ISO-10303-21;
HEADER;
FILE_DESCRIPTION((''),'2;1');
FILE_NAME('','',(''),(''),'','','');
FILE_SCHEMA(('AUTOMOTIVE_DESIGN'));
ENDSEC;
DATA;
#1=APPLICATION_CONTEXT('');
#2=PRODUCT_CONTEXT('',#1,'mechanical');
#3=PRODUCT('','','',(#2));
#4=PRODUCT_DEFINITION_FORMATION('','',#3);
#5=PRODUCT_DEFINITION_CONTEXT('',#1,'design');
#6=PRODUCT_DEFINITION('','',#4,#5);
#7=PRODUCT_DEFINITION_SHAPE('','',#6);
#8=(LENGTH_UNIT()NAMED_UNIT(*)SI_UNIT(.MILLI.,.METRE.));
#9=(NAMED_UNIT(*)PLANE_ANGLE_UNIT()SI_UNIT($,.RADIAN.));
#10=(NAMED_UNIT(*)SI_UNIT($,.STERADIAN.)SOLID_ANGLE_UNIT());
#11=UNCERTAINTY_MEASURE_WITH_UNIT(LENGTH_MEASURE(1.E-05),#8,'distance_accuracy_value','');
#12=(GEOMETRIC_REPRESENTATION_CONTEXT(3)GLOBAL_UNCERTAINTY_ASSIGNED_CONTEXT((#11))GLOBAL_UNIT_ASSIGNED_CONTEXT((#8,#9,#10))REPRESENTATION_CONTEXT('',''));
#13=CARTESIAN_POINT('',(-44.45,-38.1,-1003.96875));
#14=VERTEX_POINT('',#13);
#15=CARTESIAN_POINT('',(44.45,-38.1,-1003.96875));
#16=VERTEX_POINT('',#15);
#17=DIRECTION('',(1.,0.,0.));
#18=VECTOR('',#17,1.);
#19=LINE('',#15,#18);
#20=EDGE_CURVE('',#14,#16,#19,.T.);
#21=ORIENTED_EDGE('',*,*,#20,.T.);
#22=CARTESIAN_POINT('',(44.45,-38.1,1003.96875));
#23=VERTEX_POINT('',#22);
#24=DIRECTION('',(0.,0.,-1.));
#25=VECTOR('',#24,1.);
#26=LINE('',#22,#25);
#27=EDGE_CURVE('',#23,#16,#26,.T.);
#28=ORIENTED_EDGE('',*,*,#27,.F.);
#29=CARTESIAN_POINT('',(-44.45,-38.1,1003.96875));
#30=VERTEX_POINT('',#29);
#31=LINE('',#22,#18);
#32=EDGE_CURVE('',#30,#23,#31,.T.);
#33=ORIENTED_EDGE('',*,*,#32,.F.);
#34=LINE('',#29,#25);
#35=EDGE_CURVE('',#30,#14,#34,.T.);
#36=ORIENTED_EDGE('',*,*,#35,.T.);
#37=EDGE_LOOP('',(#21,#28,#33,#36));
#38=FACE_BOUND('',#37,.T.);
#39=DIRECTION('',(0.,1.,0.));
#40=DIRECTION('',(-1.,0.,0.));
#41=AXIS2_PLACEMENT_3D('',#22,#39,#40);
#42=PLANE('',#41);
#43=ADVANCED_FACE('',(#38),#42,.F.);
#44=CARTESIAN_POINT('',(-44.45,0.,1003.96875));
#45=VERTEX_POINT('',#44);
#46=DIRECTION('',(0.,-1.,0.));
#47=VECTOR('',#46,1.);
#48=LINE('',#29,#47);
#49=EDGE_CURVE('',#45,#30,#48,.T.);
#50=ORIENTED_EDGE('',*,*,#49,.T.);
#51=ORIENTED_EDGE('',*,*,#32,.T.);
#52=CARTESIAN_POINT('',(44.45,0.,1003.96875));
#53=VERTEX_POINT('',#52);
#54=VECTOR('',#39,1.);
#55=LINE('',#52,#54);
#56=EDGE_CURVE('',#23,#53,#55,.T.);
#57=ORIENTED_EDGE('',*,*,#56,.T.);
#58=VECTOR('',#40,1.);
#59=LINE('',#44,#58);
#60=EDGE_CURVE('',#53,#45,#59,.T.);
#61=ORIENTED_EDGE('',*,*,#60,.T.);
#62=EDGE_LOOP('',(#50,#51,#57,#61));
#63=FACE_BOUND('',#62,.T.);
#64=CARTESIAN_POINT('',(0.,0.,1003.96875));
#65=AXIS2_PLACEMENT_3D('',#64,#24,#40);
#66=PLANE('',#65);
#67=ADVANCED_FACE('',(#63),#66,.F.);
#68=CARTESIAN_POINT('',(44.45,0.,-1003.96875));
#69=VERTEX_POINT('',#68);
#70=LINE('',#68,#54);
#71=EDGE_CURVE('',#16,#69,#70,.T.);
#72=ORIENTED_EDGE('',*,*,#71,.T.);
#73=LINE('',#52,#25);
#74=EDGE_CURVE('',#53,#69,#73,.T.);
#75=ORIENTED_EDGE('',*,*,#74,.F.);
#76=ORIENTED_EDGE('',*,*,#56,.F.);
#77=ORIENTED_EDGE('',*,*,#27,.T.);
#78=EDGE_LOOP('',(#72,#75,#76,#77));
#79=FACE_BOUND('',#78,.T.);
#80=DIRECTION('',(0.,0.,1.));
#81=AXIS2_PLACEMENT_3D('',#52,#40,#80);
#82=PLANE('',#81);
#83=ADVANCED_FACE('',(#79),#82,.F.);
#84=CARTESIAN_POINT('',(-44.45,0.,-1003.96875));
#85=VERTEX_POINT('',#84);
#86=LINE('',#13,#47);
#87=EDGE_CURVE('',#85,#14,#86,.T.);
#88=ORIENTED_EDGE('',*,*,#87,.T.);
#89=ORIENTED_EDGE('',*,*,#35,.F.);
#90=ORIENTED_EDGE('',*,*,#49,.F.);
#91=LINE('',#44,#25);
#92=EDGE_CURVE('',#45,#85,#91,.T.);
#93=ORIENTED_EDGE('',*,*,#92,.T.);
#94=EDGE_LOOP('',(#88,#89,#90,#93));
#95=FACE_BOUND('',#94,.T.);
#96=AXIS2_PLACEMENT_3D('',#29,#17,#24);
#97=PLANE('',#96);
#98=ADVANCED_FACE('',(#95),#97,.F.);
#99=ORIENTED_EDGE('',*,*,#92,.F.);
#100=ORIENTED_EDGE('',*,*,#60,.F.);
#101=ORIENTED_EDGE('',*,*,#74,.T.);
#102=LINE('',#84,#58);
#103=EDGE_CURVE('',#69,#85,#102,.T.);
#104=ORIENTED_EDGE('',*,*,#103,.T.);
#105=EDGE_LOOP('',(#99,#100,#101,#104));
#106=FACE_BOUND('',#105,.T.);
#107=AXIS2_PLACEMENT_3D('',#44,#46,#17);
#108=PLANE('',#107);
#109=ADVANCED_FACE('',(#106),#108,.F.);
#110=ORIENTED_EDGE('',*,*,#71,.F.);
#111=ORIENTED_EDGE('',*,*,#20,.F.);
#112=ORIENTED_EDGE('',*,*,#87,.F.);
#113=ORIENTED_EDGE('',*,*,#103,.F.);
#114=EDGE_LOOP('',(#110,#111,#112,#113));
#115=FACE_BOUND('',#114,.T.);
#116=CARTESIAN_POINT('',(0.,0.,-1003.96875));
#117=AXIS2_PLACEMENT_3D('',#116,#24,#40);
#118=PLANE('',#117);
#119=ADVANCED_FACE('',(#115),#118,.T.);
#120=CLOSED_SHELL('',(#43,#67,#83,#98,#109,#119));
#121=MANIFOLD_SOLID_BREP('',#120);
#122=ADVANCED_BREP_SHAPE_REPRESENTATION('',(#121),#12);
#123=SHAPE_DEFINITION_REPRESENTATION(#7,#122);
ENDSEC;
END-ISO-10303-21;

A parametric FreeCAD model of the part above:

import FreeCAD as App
import Part
import Sketcher
from FreeCAD import Vector
Q = App.Units.Quantity


def add_polygon(sketch, points):
    """Adds a closed chain of lines whose ends are joined by coincident constraints."""
    first, n = sketch.GeometryCount, len(points)
    for a, b in zip(points, points[1:] + points[:1]):
        sketch.addGeometry(Part.LineSegment(App.Vector(*a, 0), App.Vector(*b, 0)), False)
    for i in range(n):
        sketch.addConstraint(Sketcher.Constraint("Coincident", first + i, 2, first + (i + 1) % n, 1))

doc = App.newDocument("Part")
params = doc.addObject("Spreadsheet::Sheet", "Params")
for row, (alias, value) in enumerate([
    ("sketch1_width", "3.5 in"),
    ("sketch1_height", "1.5 in"),
    ("pad1_length", "2007.9375 mm"),
], start=1):
    params.set(f"A{row}", alias)
    params.set(f"B{row}", "=" + value)
    params.setAlias(f"B{row}", alias)

body = doc.addObject("PartDesign::Body", "Body")

# Sketch on XY plane
sketch1 = body.newObject("Sketcher::SketchObject", "Sketch")
sketch1.AttachmentSupport = (doc.getObject("XY_Plane"), [""])
sketch1.MapMode = "FlatFace"
add_polygon(sketch1, [(-44.45, 0), (-44.45, -38.1), (44.45, -38.1), (44.45, 0)])  # lines 0-3
sketch1.addConstraint([
    Sketcher.Constraint("Vertical", 0),
    Sketcher.Constraint("Horizontal", 1),
    Sketcher.Constraint("Vertical", 2),
    Sketcher.Constraint("Horizontal", 3),
    Sketcher.Constraint("Symmetric", 2, 2, 3, 2, -1, 1),
    Sketcher.Constraint("DistanceX", 1, 1, 1, 2, Q("3.5 in")),
    Sketcher.Constraint("DistanceY", 0, 2, 0, 1, Q("1.5 in")),
])
sketch1.setExpression("Constraints[9]", "Params.sketch1_width")
sketch1.setExpression("Constraints[10]", "Params.sketch1_height")
pad1 = body.newObject("PartDesign::Pad", "Pad")
pad1.Profile = sketch1
pad1.setExpression("Length", "Params.pad1_length")
pad1.Midplane = True

doc.recompute()
